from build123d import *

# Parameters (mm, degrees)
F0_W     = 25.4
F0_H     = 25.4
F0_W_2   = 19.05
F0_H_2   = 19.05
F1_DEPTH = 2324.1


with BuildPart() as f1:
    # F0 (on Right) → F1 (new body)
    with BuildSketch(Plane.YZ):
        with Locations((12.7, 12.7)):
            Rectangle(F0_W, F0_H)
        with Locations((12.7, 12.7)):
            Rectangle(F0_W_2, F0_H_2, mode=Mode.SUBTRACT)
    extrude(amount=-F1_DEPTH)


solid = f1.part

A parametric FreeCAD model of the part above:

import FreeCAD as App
import Part
import Sketcher
Q = App.Units.Quantity

doc = App.newDocument("Part")
params = doc.addObject("Spreadsheet::Sheet", "Params")
for row, (alias, value) in enumerate([
    ("sketch1_width", "1 in"),
    ("sketch1_width2", "0.75 in"),
    ("pad1_length", "91.5 in"),
], start=1):
    params.set(f"A{row}", alias)
    params.set(f"B{row}", "=" + value)
    params.setAlias(f"B{row}", alias)

body = doc.addObject("PartDesign::Body", "Body")

# Sketch on YZ plane
sketch1 = body.newObject("Sketcher::SketchObject", "Sketch")
sketch1.AttachmentSupport = (doc.getObject("YZ_Plane"), [""])
sketch1.MapMode = "FlatFace"
sketch1.addGeometry(Part.LineSegment(App.Vector(0, 25, 0), App.Vector(0, 0, 0)), False)
sketch1.addGeometry(Part.LineSegment(App.Vector(0, 0, 0), App.Vector(25, 0, 0)), False)
sketch1.addGeometry(Part.LineSegment(App.Vector(25, 0, 0), App.Vector(25, 25, 0)), False)
sketch1.addGeometry(Part.LineSegment(App.Vector(25, 25, 0), App.Vector(0, 25, 0)), False)
sketch1.addGeometry(Part.LineSegment(App.Vector(22, 3, 0), App.Vector(3, 3, 0)), False)
sketch1.addGeometry(Part.LineSegment(App.Vector(3, 3, 0), App.Vector(3, 22, 0)), False)
sketch1.addGeometry(Part.LineSegment(App.Vector(3, 22, 0), App.Vector(22, 22, 0)), False)
sketch1.addGeometry(Part.LineSegment(App.Vector(22, 22, 0), App.Vector(22, 3, 0)), False)
sketch1.addConstraint(Sketcher.Constraint("Coincident", 0, 2, 1, 1))
sketch1.addConstraint(Sketcher.Constraint("Coincident", 1, 2, 2, 1))
sketch1.addConstraint(Sketcher.Constraint("Coincident", 2, 2, 3, 1))
sketch1.addConstraint(Sketcher.Constraint("Coincident", 3, 2, 0, 1))
sketch1.addConstraint(Sketcher.Constraint("Coincident", 4, 2, 5, 1))
sketch1.addConstraint(Sketcher.Constraint("Coincident", 5, 2, 6, 1))
sketch1.addConstraint(Sketcher.Constraint("Coincident", 6, 2, 7, 1))
sketch1.addConstraint(Sketcher.Constraint("Coincident", 7, 2, 4, 1))
sketch1.addConstraint(Sketcher.Constraint("Vertical", 0))
sketch1.addConstraint(Sketcher.Constraint("Horizontal", 1))
sketch1.addConstraint(Sketcher.Constraint("Vertical", 2))
sketch1.addConstraint(Sketcher.Constraint("Horizontal", 3))
sketch1.addConstraint(Sketcher.Constraint("Horizontal", 4))
sketch1.addConstraint(Sketcher.Constraint("Vertical", 5))
sketch1.addConstraint(Sketcher.Constraint("Horizontal", 6))
sketch1.addConstraint(Sketcher.Constraint("Vertical", 7))
sketch1.addConstraint(Sketcher.Constraint("Coincident", 0, 2, -1, 1))
sketch1.addConstraint(Sketcher.Constraint("Equal", 3, 0))
sketch1.addConstraint(Sketcher.Constraint("Equal", 6, 5))
sketch1.addConstraint(Sketcher.Constraint("DistanceX", 1, 1, 1, 2, Q("1 in")))
sketch1.addConstraint(Sketcher.Constraint("DistanceX", 4, 2, 4, 1, Q("0.75 in")))
sketch1.addConstraint(Sketcher.Constraint("DistanceX", -1, 1, 4, 2, Q("0.125 in")))
sketch1.addConstraint(Sketcher.Constraint("DistanceY", -1, 1, 4, 2, Q("0.125 in")))
sketch1.setExpression("Constraints[19]", "Params.sketch1_width")
sketch1.setExpression("Constraints[20]", "Params.sketch1_width2")
pad1 = body.newObject("PartDesign::Pad", "Pad")
pad1.Profile = sketch1
pad1.setExpression("Length", "Params.pad1_length")
pad1.Reversed = True

doc.recompute()
